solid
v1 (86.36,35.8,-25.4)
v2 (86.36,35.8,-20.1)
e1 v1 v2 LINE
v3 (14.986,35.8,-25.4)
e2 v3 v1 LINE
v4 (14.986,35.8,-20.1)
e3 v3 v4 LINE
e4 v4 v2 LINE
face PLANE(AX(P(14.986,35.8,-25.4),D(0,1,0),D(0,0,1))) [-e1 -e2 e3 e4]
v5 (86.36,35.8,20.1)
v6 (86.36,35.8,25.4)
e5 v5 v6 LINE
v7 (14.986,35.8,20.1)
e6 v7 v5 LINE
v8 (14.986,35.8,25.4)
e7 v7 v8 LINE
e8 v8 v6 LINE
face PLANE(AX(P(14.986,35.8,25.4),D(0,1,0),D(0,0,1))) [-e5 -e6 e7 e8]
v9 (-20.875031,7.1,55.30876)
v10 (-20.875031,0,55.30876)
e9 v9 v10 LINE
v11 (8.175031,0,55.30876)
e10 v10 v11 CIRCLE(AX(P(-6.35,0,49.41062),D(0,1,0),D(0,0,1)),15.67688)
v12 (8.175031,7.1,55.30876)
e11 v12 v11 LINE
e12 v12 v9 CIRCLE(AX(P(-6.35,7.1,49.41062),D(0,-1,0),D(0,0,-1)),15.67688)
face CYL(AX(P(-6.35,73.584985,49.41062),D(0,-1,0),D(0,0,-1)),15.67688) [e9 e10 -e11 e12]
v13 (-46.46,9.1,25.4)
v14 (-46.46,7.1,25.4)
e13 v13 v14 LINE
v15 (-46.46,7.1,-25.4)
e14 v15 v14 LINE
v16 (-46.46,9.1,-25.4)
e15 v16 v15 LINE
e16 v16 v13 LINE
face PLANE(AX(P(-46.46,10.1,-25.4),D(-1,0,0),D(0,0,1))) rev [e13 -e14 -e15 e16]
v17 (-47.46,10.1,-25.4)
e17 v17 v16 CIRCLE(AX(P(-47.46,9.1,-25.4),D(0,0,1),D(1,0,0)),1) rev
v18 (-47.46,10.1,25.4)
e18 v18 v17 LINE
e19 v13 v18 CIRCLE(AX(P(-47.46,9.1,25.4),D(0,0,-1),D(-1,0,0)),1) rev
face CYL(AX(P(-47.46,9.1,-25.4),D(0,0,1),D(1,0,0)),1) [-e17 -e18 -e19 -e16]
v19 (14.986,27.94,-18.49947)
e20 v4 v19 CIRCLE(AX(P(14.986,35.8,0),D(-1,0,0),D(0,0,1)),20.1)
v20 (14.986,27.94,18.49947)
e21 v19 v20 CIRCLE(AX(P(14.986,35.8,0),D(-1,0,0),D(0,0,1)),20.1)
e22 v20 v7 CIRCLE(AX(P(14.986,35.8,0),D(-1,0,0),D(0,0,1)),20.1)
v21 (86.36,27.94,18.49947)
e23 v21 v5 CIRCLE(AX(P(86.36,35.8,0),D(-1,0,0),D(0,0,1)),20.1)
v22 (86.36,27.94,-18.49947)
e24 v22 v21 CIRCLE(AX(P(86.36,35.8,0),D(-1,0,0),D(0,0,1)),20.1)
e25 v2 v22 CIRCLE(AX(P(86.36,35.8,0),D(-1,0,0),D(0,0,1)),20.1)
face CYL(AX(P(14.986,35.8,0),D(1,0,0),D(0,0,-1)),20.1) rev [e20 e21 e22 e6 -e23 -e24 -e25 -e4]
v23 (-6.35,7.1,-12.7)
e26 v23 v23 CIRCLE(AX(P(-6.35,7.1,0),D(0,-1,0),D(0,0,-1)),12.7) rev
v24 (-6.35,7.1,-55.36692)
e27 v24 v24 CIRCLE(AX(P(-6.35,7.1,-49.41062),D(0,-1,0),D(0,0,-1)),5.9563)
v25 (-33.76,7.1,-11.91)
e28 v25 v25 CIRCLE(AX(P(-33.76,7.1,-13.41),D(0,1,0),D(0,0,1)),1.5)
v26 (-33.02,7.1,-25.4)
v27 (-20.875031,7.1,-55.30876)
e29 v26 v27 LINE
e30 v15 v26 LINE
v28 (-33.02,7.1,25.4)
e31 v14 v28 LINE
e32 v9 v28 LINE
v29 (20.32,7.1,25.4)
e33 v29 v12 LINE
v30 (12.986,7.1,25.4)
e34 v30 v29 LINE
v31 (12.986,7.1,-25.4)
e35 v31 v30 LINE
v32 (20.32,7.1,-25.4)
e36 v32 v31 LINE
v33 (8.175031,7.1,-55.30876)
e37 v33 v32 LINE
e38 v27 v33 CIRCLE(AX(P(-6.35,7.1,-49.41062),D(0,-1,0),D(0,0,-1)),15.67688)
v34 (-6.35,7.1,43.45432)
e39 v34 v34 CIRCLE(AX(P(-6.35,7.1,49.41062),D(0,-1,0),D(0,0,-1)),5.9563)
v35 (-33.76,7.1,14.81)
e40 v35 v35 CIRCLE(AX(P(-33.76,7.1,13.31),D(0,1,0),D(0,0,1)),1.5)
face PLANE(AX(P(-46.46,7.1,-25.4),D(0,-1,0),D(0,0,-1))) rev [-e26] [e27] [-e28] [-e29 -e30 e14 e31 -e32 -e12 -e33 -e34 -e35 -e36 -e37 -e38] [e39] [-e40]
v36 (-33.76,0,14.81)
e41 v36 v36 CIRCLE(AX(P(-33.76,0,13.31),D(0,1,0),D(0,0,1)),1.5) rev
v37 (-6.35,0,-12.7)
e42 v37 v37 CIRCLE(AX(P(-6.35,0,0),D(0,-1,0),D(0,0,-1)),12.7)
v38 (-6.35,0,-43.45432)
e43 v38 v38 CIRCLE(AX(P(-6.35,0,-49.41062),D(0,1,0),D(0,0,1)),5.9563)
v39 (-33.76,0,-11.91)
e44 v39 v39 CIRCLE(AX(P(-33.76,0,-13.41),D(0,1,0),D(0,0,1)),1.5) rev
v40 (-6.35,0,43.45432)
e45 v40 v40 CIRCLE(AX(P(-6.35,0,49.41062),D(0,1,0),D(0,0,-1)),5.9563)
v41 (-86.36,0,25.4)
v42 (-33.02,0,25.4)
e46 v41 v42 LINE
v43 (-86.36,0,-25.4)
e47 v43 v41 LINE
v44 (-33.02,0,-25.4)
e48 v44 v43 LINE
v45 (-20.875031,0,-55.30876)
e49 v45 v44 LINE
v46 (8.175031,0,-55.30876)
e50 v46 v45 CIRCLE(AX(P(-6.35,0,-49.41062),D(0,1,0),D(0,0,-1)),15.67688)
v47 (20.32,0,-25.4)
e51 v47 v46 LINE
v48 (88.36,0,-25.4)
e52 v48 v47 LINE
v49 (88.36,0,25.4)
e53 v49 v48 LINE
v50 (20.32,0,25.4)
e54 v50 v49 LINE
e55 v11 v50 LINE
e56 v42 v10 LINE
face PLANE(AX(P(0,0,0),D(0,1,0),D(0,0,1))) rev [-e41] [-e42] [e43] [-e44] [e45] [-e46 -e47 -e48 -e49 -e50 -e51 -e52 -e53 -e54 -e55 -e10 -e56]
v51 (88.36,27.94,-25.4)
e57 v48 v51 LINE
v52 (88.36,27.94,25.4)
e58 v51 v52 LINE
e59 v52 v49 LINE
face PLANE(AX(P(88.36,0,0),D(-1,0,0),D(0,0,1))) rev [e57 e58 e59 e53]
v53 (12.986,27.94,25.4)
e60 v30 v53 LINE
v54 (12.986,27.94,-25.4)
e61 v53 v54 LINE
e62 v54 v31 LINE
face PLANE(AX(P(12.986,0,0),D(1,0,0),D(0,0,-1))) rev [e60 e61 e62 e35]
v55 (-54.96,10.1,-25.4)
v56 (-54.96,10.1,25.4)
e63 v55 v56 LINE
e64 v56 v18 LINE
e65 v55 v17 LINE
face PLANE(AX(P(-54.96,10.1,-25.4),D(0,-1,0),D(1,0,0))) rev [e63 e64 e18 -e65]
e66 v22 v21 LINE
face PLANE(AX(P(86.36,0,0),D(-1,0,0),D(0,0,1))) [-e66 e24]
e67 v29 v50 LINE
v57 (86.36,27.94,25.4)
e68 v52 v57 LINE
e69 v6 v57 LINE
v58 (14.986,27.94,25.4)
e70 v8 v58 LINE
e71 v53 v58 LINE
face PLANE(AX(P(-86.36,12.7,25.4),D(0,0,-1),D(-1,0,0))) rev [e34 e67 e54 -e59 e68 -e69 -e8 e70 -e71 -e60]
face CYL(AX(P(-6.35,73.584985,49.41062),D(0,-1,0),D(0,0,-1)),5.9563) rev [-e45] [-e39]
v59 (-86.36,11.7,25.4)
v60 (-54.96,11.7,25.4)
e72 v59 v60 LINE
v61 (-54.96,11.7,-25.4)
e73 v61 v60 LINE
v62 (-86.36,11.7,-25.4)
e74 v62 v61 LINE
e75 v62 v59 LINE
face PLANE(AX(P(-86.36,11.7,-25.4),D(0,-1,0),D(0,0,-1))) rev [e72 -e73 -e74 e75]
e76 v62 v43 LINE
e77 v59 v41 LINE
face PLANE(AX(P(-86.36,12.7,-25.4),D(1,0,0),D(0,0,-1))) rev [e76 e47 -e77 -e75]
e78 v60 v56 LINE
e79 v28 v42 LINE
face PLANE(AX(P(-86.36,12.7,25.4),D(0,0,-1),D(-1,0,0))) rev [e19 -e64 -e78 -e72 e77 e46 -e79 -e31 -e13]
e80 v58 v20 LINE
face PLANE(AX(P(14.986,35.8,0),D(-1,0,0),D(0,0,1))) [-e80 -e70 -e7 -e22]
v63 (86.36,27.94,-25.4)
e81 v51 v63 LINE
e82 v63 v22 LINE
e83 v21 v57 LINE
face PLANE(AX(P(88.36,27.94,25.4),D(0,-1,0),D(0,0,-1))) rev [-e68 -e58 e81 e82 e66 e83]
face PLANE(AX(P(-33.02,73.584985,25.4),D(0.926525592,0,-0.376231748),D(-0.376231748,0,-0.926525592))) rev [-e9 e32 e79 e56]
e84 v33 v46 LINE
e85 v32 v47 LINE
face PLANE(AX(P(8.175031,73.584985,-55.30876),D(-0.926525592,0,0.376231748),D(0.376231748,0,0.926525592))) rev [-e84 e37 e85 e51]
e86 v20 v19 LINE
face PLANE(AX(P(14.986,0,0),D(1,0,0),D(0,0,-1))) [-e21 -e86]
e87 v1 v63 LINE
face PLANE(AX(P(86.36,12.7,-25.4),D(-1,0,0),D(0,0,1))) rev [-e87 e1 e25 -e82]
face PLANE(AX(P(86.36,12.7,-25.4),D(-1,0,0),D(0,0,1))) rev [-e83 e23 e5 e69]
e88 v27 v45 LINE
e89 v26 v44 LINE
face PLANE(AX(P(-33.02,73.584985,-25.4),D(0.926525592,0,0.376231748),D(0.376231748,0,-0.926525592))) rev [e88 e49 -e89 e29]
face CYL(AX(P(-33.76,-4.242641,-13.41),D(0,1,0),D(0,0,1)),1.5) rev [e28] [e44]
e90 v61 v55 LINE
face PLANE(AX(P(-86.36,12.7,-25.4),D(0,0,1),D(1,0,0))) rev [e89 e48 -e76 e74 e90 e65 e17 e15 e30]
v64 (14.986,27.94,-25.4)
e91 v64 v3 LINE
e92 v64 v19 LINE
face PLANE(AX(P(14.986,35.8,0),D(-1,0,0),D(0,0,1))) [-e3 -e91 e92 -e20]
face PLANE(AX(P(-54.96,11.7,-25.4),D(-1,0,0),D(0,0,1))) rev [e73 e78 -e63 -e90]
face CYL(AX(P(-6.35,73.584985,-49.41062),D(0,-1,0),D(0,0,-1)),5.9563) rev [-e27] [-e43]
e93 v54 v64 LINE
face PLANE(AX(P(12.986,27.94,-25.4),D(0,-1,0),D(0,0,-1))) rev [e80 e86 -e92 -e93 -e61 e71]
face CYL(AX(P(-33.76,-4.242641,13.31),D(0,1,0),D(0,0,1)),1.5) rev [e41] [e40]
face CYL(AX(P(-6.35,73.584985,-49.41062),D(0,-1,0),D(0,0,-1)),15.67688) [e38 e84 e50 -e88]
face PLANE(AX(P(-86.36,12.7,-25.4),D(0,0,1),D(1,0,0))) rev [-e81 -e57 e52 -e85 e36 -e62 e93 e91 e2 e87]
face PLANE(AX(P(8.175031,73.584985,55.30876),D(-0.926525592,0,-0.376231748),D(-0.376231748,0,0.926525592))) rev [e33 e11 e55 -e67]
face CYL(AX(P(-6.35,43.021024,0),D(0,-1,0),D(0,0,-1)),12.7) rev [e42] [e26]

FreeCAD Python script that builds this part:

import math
import FreeCAD as App
import Part
import Sketcher

V = App.Vector


def edges_at(feature, points):
    """Names of the edges that pass closest to the given points."""
    edges = feature.Shape.Edges
    near = lambda p: min(range(len(edges)), key=lambda i: edges[i].distToShape(Part.Vertex(*p))[0])
    return sorted({f"Edge{near(p) + 1}" for p in points})

doc = App.newDocument("Part")
body = doc.addObject("PartDesign::Body", "Body")

# Sketch on XZ plane
sketch1 = doc.addObject("Sketcher::SketchObject", "Sketch")
body.addObject(sketch1)
sketch1.AttachmentSupport = (doc.XZ_Plane, [""])
sketch1.MapMode = "FlatFace"
sketch1.addGeometry([
    Part.LineSegment(V(-86.36, -25.4, 0), V(-86.36, 25.4, 0)),
    Part.LineSegment(V(-86.36, 25.4, 0), V(86.36, 25.4, 0)),
    Part.LineSegment(V(86.36, 25.4, 0), V(86.36, -25.4, 0)),
    Part.LineSegment(V(86.36, -25.4, 0), V(-86.36, -25.4, 0)),
], False)
sketch1.addConstraint([
    Sketcher.Constraint("Coincident", 0, 2, 1, 1),
    Sketcher.Constraint("Coincident", 1, 2, 2, 1),
    Sketcher.Constraint("Coincident", 2, 2, 3, 1),
    Sketcher.Constraint("Coincident", 3, 2, 0, 1),
    Sketcher.Constraint("Vertical", 0),
    Sketcher.Constraint("Horizontal", 1),
    Sketcher.Constraint("Vertical", 2),
    Sketcher.Constraint("Horizontal", 3),
    Sketcher.Constraint("Symmetric", 0, 2, 2, 2, -1, 1),
    Sketcher.Constraint("DistanceY", 0, 1, 0, 2, 50.8),
    Sketcher.Constraint("DistanceX", 1, 1, 1, 2, 172.72),
])
pad1 = doc.addObject("PartDesign::Pad", "Pad")
body.addObject(pad1)
pad1.Profile = sketch1
pad1.Length = 12.7
pad1.Reversed = True

# Sketch on YZ plane
sketch2 = doc.addObject("Sketcher::SketchObject", "Sketch001")
body.addObject(sketch2)
sketch2.AttachmentSupport = (doc.YZ_Plane, [""])
sketch2.MapMode = "FlatFace"
sketch2.AttachmentOffset = App.Placement(V(0, 0, 86.36), App.Rotation())
sketch2.addGeometry([
    Part.LineSegment(V(35.8, 25.4, 0), V(12.7, 25.4, 0)),  # 0
    Part.LineSegment(V(12.7, 25.4, 0), V(12.7, -25.4, 0)),  # 1
    Part.LineSegment(V(12.7, -25.4, 0), V(35.8, -25.4, 0)),  # 2
    Part.LineSegment(V(35.8, -25.4, 0), V(35.8, -20.1, 0)),  # 3
    Part.ArcOfCircle(Part.Circle(V(35.8, 0, 0), V(0, 0, 1), 20.1), math.radians(90), math.radians(270)),  # 4
    Part.LineSegment(V(35.8, 20.1, 0), V(35.8, 25.4, 0)),  # 5
], False)
sketch2.addConstraint([
    Sketcher.Constraint("Coincident", 0, 2, 1, 1),
    Sketcher.Constraint("Coincident", 1, 2, 2, 1),
    Sketcher.Constraint("Coincident", 2, 2, 3, 1),
    Sketcher.Constraint("Coincident", 3, 2, 4, 2),
    Sketcher.Constraint("Coincident", 4, 1, 5, 1),
    Sketcher.Constraint("Coincident", 5, 2, 0, 1),
    Sketcher.Constraint("Horizontal", 0),
    Sketcher.Constraint("Vertical", 1),
    Sketcher.Constraint("Horizontal", 2),
    Sketcher.Constraint("Vertical", 3),
    Sketcher.Constraint("Vertical", 5),
    Sketcher.Constraint("Symmetric", 3, 2, 4, 1, -1),
    Sketcher.Constraint("Vertical", 4, 3, 2, 2),
    Sketcher.Constraint("Equal", 3, 5),
    Sketcher.Constraint("Radius", 4, 20.1),
    Sketcher.Constraint("DistanceX", 0, 2, 0, 1, 23.1),
    Sketcher.Constraint("DistanceY", 1, 2, 1, 1, 50.8),
    Sketcher.Constraint("DistanceX", -1, 1, 4, 3, 35.8),
])
pad2 = doc.addObject("PartDesign::Pad", "Pad001")
body.addObject(pad2)
pad2.Profile = sketch2
pad2.Length = 71.374
pad2.Reversed = True

# Sketch on YZ plane
sketch3 = doc.addObject("Sketcher::SketchObject", "Sketch002")
body.addObject(sketch3)
sketch3.AttachmentSupport = (doc.YZ_Plane, [""])
sketch3.MapMode = "FlatFace"
sketch3.AttachmentOffset = App.Placement(V(0, 0, 86.36), App.Rotation())
sketch3.addGeometry([
    Part.LineSegment(V(27.94, 25.4, 0), V(0, 25.4, 0)),
    Part.LineSegment(V(0, 25.4, 0), V(0, -25.4, 0)),
    Part.LineSegment(V(0, -25.4, 0), V(27.94, -25.4, 0)),
    Part.LineSegment(V(27.94, -25.4, 0), V(27.94, 25.4, 0)),
], False)
sketch3.addConstraint([
    Sketcher.Constraint("Coincident", 0, 2, 1, 1),
    Sketcher.Constraint("Coincident", 1, 2, 2, 1),
    Sketcher.Constraint("Coincident", 2, 2, 3, 1),
    Sketcher.Constraint("Coincident", 3, 2, 0, 1),
    Sketcher.Constraint("Horizontal", 0),
    Sketcher.Constraint("Vertical", 1),
    Sketcher.Constraint("Horizontal", 2),
    Sketcher.Constraint("Vertical", 3),
    Sketcher.Constraint("Symmetric", 0, 2, 1, 2, -1, 1),
    Sketcher.Constraint("DistanceY", 1, 2, 1, 1, 50.8),
    Sketcher.Constraint("DistanceX", 0, 2, 0, 1, 27.94),
])
pad3 = doc.addObject("PartDesign::Pad", "Pad002")
body.addObject(pad3)
pad3.Profile = sketch3
pad3.Length = 2

# Sketch on YZ plane
sketch4 = doc.addObject("Sketcher::SketchObject", "Sketch003")
body.addObject(sketch4)
sketch4.AttachmentSupport = (doc.YZ_Plane, [""])
sketch4.MapMode = "FlatFace"
sketch4.AttachmentOffset = App.Placement(V(0, 0, 14.986), App.Rotation())
sketch4.addGeometry([
    Part.LineSegment(V(27.94, -25.4, 0), V(12.7, -25.4, 0)),
    Part.LineSegment(V(12.7, -25.4, 0), V(12.7, 25.4, 0)),
    Part.LineSegment(V(12.7, 25.4, 0), V(27.94, 25.4, 0)),
    Part.LineSegment(V(27.94, 25.4, 0), V(27.94, -25.4, 0)),
], False)
sketch4.addConstraint([
    Sketcher.Constraint("Coincident", 0, 2, 1, 1),
    Sketcher.Constraint("Coincident", 1, 2, 2, 1),
    Sketcher.Constraint("Coincident", 2, 2, 3, 1),
    Sketcher.Constraint("Coincident", 3, 2, 0, 1),
    Sketcher.Constraint("Horizontal", 0),
    Sketcher.Constraint("Vertical", 1),
    Sketcher.Constraint("Horizontal", 2),
    Sketcher.Constraint("Vertical", 3),
    Sketcher.Constraint("DistanceY", 1, 1, 1, 2, 50.8),
    Sketcher.Constraint("DistanceX", 0, 2, 0, 1, 15.24),
    Sketcher.Constraint("DistanceX", -1, 1, 0, 2, 12.7),
    Sketcher.Constraint("DistanceY", 0, 2, -1, 1, 25.4),
])
pad4 = doc.addObject("PartDesign::Pad", "Pad003")
body.addObject(pad4)
pad4.Profile = sketch4
pad4.Length = 2
pad4.Reversed = True

# Sketch on XY plane
sketch5 = doc.addObject("Sketcher::SketchObject", "Sketch004")
body.addObject(sketch5)
sketch5.AttachmentSupport = (doc.XY_Plane, [""])
sketch5.MapMode = "FlatFace"
sketch5.AttachmentOffset = App.Placement(V(0, 0, 25.4), App.Rotation())
sketch5.addGeometry([
    Part.LineSegment(V(-86.36, 12.7, 0), V(-86.36, 11.7, 0)),  # 0
    Part.LineSegment(V(-86.36, 11.7, 0), V(-54.96, 11.7, 0)),  # 1
    Part.LineSegment(V(-54.96, 11.7, 0), V(-54.96, 10.1, 0)),  # 2
    Part.LineSegment(V(-54.96, 10.1, 0), V(-46.46, 10.1, 0)),  # 3
    Part.LineSegment(V(-46.46, 10.1, 0), V(-46.46, 7.1, 0)),  # 4
    Part.LineSegment(V(-46.46, 7.1, 0), V(12.986, 7.1, 0)),  # 5
    Part.LineSegment(V(12.986, 7.1, 0), V(12.986, 12.7, 0)),  # 6
    Part.LineSegment(V(12.986, 12.7, 0), V(-86.36, 12.7, 0)),  # 7
], False)
sketch5.addConstraint([
    Sketcher.Constraint("Coincident", 0, 2, 1, 1),
    Sketcher.Constraint("Coincident", 1, 2, 2, 1),
    Sketcher.Constraint("Coincident", 2, 2, 3, 1),
    Sketcher.Constraint("Coincident", 3, 2, 4, 1),
    Sketcher.Constraint("Coincident", 4, 2, 5, 1),
    Sketcher.Constraint("Coincident", 5, 2, 6, 1),
    Sketcher.Constraint("Coincident", 6, 2, 7, 1),
    Sketcher.Constraint("Coincident", 7, 2, 0, 1),
    Sketcher.Constraint("Vertical", 0),
    Sketcher.Constraint("Horizontal", 1),
    Sketcher.Constraint("Vertical", 2),
    Sketcher.Constraint("Horizontal", 3),
    Sketcher.Constraint("Vertical", 4),
    Sketcher.Constraint("Horizontal", 5),
    Sketcher.Constraint("Vertical", 6),
    Sketcher.Constraint("Horizontal", 7),
    Sketcher.Constraint("DistanceY", 0, 2, 0, 1, 1.0),
    Sketcher.Constraint("DistanceY", 4, 2, 4, 1, 3.0),
    Sketcher.Constraint("DistanceX", 1, 1, 1, 2, 31.4),
    Sketcher.Constraint("DistanceX", 3, 1, 3, 2, 8.5),
    Sketcher.Constraint("DistanceY", 2, 2, 2, 1, 1.6),
    Sketcher.Constraint("DistanceY", -1, 1, 0, 2, 11.7),
    Sketcher.Constraint("DistanceX", 5, 1, 5, 2, 59.446),
    Sketcher.Constraint("DistanceX", 0, 2, -1, 1, 86.36),
])
pocket1 = doc.addObject("PartDesign::Pocket", "Pocket")
body.addObject(pocket1)
pocket1.Profile = sketch5
pocket1.Type = "ThroughAll"
doc.recompute()

fillet = doc.addObject("PartDesign::Fillet", "Fillet")
body.addObject(fillet)
fillet.Base = (pocket1, edges_at(pocket1, [(-46.46, 10.1, 0)]))
fillet.Radius = 1

# Sketch on XZ plane
sketch6 = doc.addObject("Sketcher::SketchObject", "Sketch005")
body.addObject(sketch6)
sketch6.AttachmentSupport = (doc.XZ_Plane, [""])
sketch6.MapMode = "FlatFace"
sketch6.addGeometry(Part.Circle(V(-6.35, 0, 0), V(0, 0, 1), 12.7), False)
sketch6.addConstraint([
    Sketcher.Constraint("PointOnObject", 0, 3, -1),
    Sketcher.Constraint("Diameter", 0, 25.4),
    Sketcher.Constraint("DistanceX", 0, 3, -1, 1, 6.35),
])
pocket2 = doc.addObject("PartDesign::Pocket", "Pocket001")
body.addObject(pocket2)
pocket2.Profile = sketch6
pocket2.Length = 7.1

# Sketch on XZ plane
sketch7 = doc.addObject("Sketcher::SketchObject", "Sketch006")
body.addObject(sketch7)
sketch7.AttachmentSupport = (doc.XZ_Plane, [""])
sketch7.MapMode = "FlatFace"
sketch7.addGeometry([
    Part.LineSegment(V(-20.875031, -55.30876, 0), V(-33.02, -25.4, 0)),  # 0
    Part.LineSegment(V(-33.02, -25.4, 0), V(20.32, -25.4, 0)),  # 1
    Part.LineSegment(V(20.32, -25.4, 0), V(8.175031, -55.30876, 0)),  # 2
    Part.ArcOfCircle(Part.Circle(V(-6.35, -49.41062, 0), V(0, 0, 1), 15.67688), math.radians(-157.899537), math.radians(-22.100463)),  # 3
    Part.Circle(V(-6.35, -49.41062, 0), V(0, 0, 1), 5.9563),  # 4
    Part.LineSegment(V(20.32, 25.4, 0), V(-33.02, 25.4, 0)),  # 5
    Part.LineSegment(V(-33.02, 25.4, 0), V(-20.875031, 55.30876, 0)),  # 6
    Part.ArcOfCircle(Part.Circle(V(-6.35, 49.41062, 0), V(0, 0, 1), 15.67688), math.radians(22.100463), math.radians(157.899537)),  # 7
    Part.LineSegment(V(8.175031, 55.30876, 0), V(20.32, 25.4, 0)),  # 8
    Part.Circle(V(-6.35, 49.41062, 0), V(0, 0, 1), 5.9563),  # 9
], False)
sketch7.addConstraint([
    Sketcher.Constraint("Coincident", 0, 2, 1, 1),
    Sketcher.Constraint("Coincident", 1, 2, 2, 1),
    Sketcher.Constraint("Tangent", 2, 2, 3, 2),
    Sketcher.Constraint("Tangent", 3, 1, 0, 1),
    Sketcher.Constraint("Coincident", 5, 2, 6, 1),
    Sketcher.Constraint("Tangent", 6, 2, 7, 2),
    Sketcher.Constraint("Tangent", 7, 1, 8, 1),
    Sketcher.Constraint("Coincident", 8, 2, 5, 1),
    Sketcher.Constraint("Horizontal", 1),
    Sketcher.Constraint("Horizontal", 5),
    Sketcher.Constraint("Coincident", 4, 3, 3, 3),
    Sketcher.Constraint("Coincident", 9, 3, 7, 3),
    Sketcher.Constraint("Equal", 3, 7),
    Sketcher.Constraint("Equal", 4, 9),
    Sketcher.Constraint("Symmetric", 3, 3, 7, 3, -1),
    Sketcher.Constraint("Symmetric", 0, 2, 5, 2, -1),
    Sketcher.Constraint("Parallel", 2, 6),
    Sketcher.Constraint("Parallel", 0, 8),
    Sketcher.Constraint("Diameter", 4, 11.9126),
    Sketcher.Constraint("DistanceX", 1, 1, 1, 2, 53.34),
    Sketcher.Constraint("DistanceY", 0, 2, -1, 1, 25.4),
    Sketcher.Constraint("DistanceX", 3, 3, -1, 1, 6.35),
    Sketcher.Constraint("Radius", 3, 15.67688),
    Sketcher.Constraint("DistanceY", 3, 3, -1, 1, 49.41062),
])
pad5 = doc.addObject("PartDesign::Pad", "Pad004")
body.addObject(pad5)
pad5.Profile = sketch7
pad5.Length = 7.1
pad5.Reversed = True

# Sketch on XZ plane
sketch8 = doc.addObject("Sketcher::SketchObject", "Sketch007")
body.addObject(sketch8)
sketch8.AttachmentSupport = (doc.XZ_Plane, [""])
sketch8.MapMode = "FlatFace"
sketch8.AttachmentOffset = App.Placement(V(0, 0, -7.1), App.Rotation())
sketch8.addGeometry([
    Part.Circle(V(-33.76, -13.41, 0), V(0, 0, 1), 1.5),
    Part.Circle(V(-33.76, 13.31, 0), V(0, 0, 1), 1.5),
], False)
sketch8.addConstraint([
    Sketcher.Constraint("Equal", 0, 1),
    Sketcher.Constraint("Vertical", 0, 3, 1, 3),
    Sketcher.Constraint("Diameter", 0, 3.0),
    Sketcher.Constraint("DistanceX", 0, 3, -1, 1, 33.76),
    Sketcher.Constraint("DistanceY", 0, 3, -1, 1, 13.41),
    Sketcher.Constraint("DistanceY", -1, 1, 1, 3, 13.31),
])
pocket3 = doc.addObject("PartDesign::Pocket", "Pocket002")
body.addObject(pocket3)
pocket3.Profile = sketch8
pocket3.Length = 7.1
pocket3.Reversed = True

doc.recompute()
